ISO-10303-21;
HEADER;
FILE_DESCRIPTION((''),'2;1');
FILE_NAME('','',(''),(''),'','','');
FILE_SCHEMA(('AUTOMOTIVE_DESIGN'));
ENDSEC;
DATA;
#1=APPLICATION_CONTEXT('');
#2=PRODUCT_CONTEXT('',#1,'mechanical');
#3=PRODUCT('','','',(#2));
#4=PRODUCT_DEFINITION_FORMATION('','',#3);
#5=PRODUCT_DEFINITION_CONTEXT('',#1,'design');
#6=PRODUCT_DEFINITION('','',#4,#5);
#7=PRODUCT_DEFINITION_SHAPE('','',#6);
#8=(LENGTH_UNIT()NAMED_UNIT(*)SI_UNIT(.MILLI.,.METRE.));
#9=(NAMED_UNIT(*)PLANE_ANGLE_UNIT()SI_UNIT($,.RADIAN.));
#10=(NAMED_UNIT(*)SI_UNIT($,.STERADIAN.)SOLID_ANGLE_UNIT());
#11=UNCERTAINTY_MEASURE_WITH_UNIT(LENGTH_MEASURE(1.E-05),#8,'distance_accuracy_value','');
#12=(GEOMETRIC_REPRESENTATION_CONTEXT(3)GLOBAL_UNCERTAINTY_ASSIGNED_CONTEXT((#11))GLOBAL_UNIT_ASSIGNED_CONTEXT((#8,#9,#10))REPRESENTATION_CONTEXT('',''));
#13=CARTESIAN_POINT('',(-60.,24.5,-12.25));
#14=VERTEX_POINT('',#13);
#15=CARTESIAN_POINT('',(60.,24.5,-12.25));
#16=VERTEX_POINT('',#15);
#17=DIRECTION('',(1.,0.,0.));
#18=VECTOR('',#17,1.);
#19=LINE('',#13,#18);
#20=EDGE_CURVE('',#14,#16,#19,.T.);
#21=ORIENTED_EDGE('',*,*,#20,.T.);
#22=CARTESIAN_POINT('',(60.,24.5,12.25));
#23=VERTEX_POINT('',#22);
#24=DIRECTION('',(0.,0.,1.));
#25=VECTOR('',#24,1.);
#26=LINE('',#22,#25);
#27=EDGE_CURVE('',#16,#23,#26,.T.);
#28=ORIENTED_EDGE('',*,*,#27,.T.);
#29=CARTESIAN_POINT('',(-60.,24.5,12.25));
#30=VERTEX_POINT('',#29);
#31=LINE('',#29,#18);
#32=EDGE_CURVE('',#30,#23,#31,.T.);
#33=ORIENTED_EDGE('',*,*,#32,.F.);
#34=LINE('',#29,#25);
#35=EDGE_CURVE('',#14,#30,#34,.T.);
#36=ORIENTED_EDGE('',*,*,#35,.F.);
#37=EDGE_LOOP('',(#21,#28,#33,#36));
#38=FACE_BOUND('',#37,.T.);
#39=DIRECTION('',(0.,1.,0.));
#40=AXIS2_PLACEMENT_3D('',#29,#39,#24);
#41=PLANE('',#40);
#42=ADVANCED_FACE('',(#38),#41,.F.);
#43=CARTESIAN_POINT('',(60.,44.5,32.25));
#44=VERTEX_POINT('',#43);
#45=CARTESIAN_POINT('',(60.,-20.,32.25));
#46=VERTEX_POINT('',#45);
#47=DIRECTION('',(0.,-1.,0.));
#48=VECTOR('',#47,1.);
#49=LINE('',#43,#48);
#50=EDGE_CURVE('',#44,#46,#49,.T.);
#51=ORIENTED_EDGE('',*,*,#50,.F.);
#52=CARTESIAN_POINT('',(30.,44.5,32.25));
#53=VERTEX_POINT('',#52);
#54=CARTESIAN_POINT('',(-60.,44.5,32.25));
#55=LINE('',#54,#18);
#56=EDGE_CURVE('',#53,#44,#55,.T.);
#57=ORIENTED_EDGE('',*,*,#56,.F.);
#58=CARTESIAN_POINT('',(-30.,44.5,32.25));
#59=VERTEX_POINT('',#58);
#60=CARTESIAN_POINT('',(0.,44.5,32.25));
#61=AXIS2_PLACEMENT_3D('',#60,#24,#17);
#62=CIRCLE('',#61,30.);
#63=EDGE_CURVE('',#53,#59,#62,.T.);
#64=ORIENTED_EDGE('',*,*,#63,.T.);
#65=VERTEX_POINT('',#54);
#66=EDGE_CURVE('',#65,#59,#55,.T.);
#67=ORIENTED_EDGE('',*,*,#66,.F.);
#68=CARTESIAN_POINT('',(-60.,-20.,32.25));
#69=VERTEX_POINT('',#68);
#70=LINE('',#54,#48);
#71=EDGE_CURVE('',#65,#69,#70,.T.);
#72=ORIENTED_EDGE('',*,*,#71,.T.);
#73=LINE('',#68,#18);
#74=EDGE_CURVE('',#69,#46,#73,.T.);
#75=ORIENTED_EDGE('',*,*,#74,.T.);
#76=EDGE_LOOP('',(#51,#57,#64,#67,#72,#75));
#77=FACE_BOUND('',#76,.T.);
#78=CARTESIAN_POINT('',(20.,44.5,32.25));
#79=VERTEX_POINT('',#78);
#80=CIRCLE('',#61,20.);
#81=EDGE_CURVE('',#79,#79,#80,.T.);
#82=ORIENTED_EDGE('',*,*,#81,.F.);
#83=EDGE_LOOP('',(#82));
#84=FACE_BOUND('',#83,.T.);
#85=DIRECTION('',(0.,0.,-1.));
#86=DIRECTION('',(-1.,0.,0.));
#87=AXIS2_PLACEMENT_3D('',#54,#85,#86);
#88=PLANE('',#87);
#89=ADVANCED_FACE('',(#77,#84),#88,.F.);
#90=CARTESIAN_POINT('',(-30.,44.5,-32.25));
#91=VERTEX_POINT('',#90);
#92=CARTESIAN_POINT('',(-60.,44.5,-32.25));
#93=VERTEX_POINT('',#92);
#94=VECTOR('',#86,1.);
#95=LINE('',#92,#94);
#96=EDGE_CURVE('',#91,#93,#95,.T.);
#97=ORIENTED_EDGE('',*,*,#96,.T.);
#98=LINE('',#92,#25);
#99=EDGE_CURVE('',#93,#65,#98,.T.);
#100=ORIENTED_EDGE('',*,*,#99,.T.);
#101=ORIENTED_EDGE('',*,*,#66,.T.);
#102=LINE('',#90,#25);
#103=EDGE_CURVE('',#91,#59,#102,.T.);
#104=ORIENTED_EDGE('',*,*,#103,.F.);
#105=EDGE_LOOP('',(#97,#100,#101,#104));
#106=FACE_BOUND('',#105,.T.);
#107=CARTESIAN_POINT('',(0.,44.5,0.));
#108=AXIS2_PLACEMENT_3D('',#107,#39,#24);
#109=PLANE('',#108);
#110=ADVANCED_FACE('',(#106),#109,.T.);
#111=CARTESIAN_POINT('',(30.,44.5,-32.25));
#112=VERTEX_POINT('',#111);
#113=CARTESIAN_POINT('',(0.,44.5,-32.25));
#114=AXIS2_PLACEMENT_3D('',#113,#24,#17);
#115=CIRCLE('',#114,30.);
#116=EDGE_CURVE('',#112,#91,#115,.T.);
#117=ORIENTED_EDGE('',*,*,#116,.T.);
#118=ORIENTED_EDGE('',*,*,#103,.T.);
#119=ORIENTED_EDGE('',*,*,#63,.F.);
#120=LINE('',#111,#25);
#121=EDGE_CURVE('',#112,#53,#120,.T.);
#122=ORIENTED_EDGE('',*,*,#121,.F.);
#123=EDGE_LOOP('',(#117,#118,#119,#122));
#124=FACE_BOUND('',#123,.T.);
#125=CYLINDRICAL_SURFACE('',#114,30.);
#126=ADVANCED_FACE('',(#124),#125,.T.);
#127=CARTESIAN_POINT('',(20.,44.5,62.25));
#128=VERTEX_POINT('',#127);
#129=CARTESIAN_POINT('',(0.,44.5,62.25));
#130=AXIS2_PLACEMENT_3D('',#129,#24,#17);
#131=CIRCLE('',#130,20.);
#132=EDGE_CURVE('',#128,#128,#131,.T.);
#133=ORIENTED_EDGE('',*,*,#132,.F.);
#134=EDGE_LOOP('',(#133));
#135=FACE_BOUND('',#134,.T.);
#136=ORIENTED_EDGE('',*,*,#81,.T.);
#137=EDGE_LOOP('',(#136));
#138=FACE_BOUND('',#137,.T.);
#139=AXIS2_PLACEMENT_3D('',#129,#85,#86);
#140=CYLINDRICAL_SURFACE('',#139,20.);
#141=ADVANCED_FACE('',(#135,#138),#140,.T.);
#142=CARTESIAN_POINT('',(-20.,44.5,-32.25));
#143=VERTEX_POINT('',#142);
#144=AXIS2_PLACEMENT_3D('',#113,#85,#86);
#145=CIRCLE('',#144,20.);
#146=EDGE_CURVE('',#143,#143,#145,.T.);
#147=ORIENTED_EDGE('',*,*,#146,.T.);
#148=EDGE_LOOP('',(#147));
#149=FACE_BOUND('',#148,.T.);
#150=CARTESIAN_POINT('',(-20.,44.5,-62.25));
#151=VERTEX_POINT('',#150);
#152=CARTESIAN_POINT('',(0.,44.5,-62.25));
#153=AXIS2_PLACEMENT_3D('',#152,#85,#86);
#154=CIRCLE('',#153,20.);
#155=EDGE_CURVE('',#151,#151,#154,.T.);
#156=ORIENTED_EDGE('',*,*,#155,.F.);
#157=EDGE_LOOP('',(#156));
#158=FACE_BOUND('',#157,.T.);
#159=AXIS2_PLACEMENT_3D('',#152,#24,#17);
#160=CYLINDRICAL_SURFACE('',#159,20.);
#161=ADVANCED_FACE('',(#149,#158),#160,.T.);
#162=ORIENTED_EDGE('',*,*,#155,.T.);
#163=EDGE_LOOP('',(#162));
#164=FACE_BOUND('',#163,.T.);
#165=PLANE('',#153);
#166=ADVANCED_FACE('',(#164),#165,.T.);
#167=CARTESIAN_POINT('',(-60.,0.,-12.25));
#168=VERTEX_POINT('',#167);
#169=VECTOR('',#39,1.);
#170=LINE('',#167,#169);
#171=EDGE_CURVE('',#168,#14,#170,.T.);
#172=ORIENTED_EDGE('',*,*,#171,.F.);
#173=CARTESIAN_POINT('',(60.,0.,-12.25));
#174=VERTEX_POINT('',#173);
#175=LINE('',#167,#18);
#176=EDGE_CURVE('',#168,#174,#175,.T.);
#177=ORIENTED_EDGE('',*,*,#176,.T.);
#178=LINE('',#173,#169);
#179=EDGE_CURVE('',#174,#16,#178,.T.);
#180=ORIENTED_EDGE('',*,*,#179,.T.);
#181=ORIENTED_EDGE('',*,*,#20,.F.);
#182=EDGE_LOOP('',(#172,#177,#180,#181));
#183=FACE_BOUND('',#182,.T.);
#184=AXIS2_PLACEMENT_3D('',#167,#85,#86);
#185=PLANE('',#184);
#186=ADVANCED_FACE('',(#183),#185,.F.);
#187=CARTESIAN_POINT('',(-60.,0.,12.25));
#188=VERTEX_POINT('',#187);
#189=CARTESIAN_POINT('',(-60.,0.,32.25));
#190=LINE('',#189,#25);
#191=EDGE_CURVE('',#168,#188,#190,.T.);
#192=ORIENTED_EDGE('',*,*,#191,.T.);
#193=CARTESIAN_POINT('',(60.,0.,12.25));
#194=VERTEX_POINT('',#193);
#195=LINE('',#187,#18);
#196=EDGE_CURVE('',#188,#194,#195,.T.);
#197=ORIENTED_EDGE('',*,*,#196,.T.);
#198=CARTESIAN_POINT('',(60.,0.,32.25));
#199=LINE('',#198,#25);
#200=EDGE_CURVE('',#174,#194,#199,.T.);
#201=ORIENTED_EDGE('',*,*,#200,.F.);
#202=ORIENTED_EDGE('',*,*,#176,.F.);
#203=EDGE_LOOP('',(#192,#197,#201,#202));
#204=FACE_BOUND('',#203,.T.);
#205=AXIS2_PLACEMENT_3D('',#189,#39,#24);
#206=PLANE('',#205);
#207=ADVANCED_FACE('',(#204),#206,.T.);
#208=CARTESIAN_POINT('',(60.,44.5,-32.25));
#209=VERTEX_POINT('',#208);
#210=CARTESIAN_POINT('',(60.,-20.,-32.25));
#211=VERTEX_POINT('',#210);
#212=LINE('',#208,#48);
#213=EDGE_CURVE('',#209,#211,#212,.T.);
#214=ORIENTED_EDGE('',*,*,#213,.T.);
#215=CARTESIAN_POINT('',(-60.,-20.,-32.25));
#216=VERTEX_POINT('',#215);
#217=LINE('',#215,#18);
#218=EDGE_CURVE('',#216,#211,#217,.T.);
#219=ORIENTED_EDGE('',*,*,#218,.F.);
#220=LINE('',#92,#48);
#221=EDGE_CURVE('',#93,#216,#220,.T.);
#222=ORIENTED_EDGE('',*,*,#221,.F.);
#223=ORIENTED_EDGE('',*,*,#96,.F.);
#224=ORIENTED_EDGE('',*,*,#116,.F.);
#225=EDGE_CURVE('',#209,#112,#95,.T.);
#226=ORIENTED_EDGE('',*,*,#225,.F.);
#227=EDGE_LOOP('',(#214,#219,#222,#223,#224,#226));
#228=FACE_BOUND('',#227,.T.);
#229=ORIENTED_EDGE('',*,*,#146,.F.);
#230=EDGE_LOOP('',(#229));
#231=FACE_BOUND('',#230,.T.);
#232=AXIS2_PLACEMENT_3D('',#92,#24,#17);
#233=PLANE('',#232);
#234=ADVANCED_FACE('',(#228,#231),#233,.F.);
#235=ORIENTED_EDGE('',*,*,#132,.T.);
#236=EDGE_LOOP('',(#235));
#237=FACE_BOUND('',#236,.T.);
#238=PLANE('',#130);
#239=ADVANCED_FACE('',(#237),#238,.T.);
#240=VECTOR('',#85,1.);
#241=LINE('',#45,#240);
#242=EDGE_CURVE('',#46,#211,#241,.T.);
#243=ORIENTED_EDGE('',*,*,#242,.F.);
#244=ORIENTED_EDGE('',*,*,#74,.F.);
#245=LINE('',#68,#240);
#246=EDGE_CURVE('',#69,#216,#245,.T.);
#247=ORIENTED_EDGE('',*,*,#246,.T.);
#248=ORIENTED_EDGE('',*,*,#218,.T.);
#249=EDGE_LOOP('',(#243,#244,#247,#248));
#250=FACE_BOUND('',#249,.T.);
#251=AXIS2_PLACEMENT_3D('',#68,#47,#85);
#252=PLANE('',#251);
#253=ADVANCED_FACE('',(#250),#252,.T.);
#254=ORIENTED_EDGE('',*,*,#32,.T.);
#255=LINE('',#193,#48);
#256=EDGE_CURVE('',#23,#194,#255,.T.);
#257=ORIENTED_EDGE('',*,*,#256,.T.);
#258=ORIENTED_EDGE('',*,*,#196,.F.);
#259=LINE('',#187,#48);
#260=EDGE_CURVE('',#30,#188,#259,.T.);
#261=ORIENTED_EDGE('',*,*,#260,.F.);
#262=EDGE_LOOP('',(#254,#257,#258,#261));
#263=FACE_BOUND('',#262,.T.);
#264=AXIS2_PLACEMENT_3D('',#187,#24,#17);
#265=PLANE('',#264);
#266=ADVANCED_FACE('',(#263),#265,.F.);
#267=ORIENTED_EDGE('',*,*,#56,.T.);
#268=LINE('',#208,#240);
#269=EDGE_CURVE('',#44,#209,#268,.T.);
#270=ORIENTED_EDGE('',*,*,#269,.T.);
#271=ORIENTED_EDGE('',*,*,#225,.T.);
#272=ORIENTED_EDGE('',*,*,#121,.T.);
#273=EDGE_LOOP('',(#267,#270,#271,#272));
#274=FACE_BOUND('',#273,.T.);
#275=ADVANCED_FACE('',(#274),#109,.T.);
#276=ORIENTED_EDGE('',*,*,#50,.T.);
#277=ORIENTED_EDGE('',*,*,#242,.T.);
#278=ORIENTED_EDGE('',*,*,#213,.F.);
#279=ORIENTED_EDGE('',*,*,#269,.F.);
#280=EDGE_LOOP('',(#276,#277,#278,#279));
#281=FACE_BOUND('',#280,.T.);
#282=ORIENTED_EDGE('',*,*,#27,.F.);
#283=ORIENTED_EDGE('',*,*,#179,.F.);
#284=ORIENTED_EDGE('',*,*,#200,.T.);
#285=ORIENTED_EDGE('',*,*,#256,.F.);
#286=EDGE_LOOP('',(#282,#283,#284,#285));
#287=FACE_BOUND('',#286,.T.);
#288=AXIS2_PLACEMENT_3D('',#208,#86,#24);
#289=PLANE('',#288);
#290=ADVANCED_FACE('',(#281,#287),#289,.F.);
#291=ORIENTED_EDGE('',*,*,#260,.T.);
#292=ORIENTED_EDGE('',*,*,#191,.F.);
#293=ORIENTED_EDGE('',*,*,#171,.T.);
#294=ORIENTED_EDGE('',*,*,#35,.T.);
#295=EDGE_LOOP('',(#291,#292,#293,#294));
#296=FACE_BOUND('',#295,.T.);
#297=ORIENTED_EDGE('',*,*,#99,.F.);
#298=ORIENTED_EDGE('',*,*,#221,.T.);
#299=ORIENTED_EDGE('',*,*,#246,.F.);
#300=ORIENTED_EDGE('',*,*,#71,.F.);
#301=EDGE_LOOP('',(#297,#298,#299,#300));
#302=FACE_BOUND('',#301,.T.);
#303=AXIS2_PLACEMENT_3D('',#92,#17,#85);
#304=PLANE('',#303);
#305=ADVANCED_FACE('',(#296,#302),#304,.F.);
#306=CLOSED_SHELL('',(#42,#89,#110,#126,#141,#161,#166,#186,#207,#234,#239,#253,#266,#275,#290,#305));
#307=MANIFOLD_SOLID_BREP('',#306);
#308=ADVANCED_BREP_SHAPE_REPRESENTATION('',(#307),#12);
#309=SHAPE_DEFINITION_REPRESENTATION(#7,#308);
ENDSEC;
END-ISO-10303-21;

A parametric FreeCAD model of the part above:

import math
import FreeCAD as App
import Part
import Sketcher

V = App.Vector
Q = App.Units.Quantity

doc = App.newDocument("Part")
body = doc.addObject("PartDesign::Body", "Body")

# Sketch on XZ plane
sketch1 = body.newObject("Sketcher::SketchObject", "Sketch")
sketch1.AttachmentSupport = (doc.getObject("XZ_Plane"), [""])
sketch1.MapMode = "FlatFace"
sketch1.addGeometry([
    Part.LineSegment(V(-60, -32.25, 0), V(-60, 32.25, 0)),
    Part.LineSegment(V(-60, 32.25, 0), V(60, 32.25, 0)),
    Part.LineSegment(V(60, 32.25, 0), V(60, -32.25, 0)),
    Part.LineSegment(V(60, -32.25, 0), V(-60, -32.25, 0)),
], False)
sketch1.addConstraint([
    Sketcher.Constraint("Coincident", 0, 2, 1, 1),
    Sketcher.Constraint("Coincident", 1, 2, 2, 1),
    Sketcher.Constraint("Coincident", 2, 2, 3, 1),
    Sketcher.Constraint("Coincident", 3, 2, 0, 1),
    Sketcher.Constraint("Vertical", 0),
    Sketcher.Constraint("Horizontal", 1),
    Sketcher.Constraint("Vertical", 2),
    Sketcher.Constraint("Horizontal", 3),
    Sketcher.Constraint("Symmetric", 0, 2, 2, 2, -1, 1),
    Sketcher.Constraint("DistanceX", 1, 1, 1, 2, Q("120 mm")),
    Sketcher.Constraint("DistanceY", 0, 1, 0, 2, Q("64.5 mm")),
])
pad1 = body.newObject("PartDesign::Pad", "Pad")
pad1.Profile = sketch1
pad1.Length = 44.5
pad1.Reversed = True

# Sketch on YZ plane
sketch2 = body.newObject("Sketcher::SketchObject", "Sketch001")
sketch2.AttachmentSupport = (doc.getObject("YZ_Plane"), [""])
sketch2.MapMode = "FlatFace"
sketch2.AttachmentOffset = App.Placement(V(0, 0, 60), App.Rotation())
sketch2.addGeometry([
    Part.LineSegment(V(24.5, 12.25, 0), V(0, 12.25, 0)),
    Part.LineSegment(V(0, 12.25, 0), V(0, -12.25, 0)),
    Part.LineSegment(V(0, -12.25, 0), V(24.5, -12.25, 0)),
    Part.LineSegment(V(24.5, -12.25, 0), V(24.5, 12.25, 0)),
], False)
sketch2.addConstraint([
    Sketcher.Constraint("Coincident", 0, 2, 1, 1),
    Sketcher.Constraint("Coincident", 1, 2, 2, 1),
    Sketcher.Constraint("Coincident", 2, 2, 3, 1),
    Sketcher.Constraint("Coincident", 3, 2, 0, 1),
    Sketcher.Constraint("Horizontal", 0),
    Sketcher.Constraint("Vertical", 1),
    Sketcher.Constraint("Horizontal", 2),
    Sketcher.Constraint("Vertical", 3),
    Sketcher.Constraint("Symmetric", 0, 2, 1, 2, -1, 1),
    Sketcher.Constraint("Equal", 2, 1),
    Sketcher.Constraint("DistanceX", 0, 2, 0, 1, Q("24.5 mm")),
])
pocket1 = body.newObject("PartDesign::Pocket", "Pocket")
pocket1.Profile = sketch2
pocket1.Type = "ThroughAll"

# Sketch on XY plane
sketch3 = body.newObject("Sketcher::SketchObject", "Sketch002")
sketch3.AttachmentSupport = (doc.getObject("XY_Plane"), [""])
sketch3.MapMode = "FlatFace"
sketch3.AttachmentOffset = App.Placement(V(0, 0, 32.25), App.Rotation())
sketch3.addGeometry([
    Part.LineSegment(V(-30, 44.5, 0), V(30, 44.5, 0)),
    Part.ArcOfCircle(Part.Circle(V(0, 44.5, 0), V(0, 0, 1), 30), math.radians(0), math.radians(180)),
], False)
sketch3.addConstraint([
    Sketcher.Constraint("Coincident", 0, 1, 1, 2),
    Sketcher.Constraint("Coincident", 1, 1, 0, 2),
    Sketcher.Constraint("Horizontal", 0),
    Sketcher.Constraint("PointOnObject", 1, 3, -2),
    Sketcher.Constraint("Horizontal", 1, 3, 0, 1),
    Sketcher.Constraint("Radius", 1, Q("30 mm")),
    Sketcher.Constraint("DistanceY", -1, 1, 1, 3, Q("44.5 mm")),
])
pad2 = body.newObject("PartDesign::Pad", "Pad001")
pad2.Profile = sketch3
pad2.Length = 64.5
pad2.Reversed = True

# Sketch on XY plane
sketch4 = body.newObject("Sketcher::SketchObject", "Sketch003")
sketch4.AttachmentSupport = (doc.getObject("XY_Plane"), [""])
sketch4.MapMode = "FlatFace"
sketch4.AttachmentOffset = App.Placement(V(0, 0, 32.25), App.Rotation())
sketch4.addGeometry(Part.Circle(V(0, 44.5, 0), V(0, 0, 1), 20), False)
sketch4.addConstraint([
    Sketcher.Constraint("PointOnObject", 0, 3, -2),
    Sketcher.Constraint("Diameter", 0, Q("40 mm")),
    Sketcher.Constraint("DistanceY", -1, 1, 0, 3, Q("44.5 mm")),
])
pad3 = body.newObject("PartDesign::Pad", "Pad002")
pad3.Profile = sketch4
pad3.Length = 30

# Sketch on XY plane
sketch5 = body.newObject("Sketcher::SketchObject", "Sketch004")
sketch5.AttachmentSupport = (doc.getObject("XY_Plane"), [""])
sketch5.MapMode = "FlatFace"
sketch5.AttachmentOffset = App.Placement(V(0, 0, -32.25), App.Rotation())
sketch5.addGeometry(Part.Circle(V(0, 44.5, 0), V(0, 0, 1), 20), False)
sketch5.addConstraint([
    Sketcher.Constraint("PointOnObject", 0, 3, -2),
    Sketcher.Constraint("Diameter", 0, Q("40 mm")),
    Sketcher.Constraint("DistanceY", -1, 1, 0, 3, Q("44.5 mm")),
])
pad4 = body.newObject("PartDesign::Pad", "Pad003")
pad4.Profile = sketch5
pad4.Length = 30
pad4.Reversed = True

# Sketch on YZ plane
sketch6 = body.newObject("Sketcher::SketchObject", "Sketch005")
sketch6.AttachmentSupport = (doc.getObject("YZ_Plane"), [""])
sketch6.MapMode = "FlatFace"
sketch6.AttachmentOffset = App.Placement(V(0, 0, 60), App.Rotation())
sketch6.addGeometry([
    Part.LineSegment(V(0, 32.25, 0), V(-20, 32.25, 0)),
    Part.LineSegment(V(-20, 32.25, 0), V(-20, -32.25, 0)),
    Part.LineSegment(V(-20, -32.25, 0), V(0, -32.25, 0)),
    Part.LineSegment(V(0, -32.25, 0), V(0, 32.25, 0)),
], False)
sketch6.addConstraint([
    Sketcher.Constraint("Coincident", 0, 2, 1, 1),
    Sketcher.Constraint("Coincident", 1, 2, 2, 1),
    Sketcher.Constraint("Coincident", 2, 2, 3, 1),
    Sketcher.Constraint("Coincident", 3, 2, 0, 1),
    Sketcher.Constraint("Horizontal", 0),
    Sketcher.Constraint("Vertical", 1),
    Sketcher.Constraint("Horizontal", 2),
    Sketcher.Constraint("Vertical", 3),
    Sketcher.Constraint("Symmetric", 2, 2, 3, 2, -1, 1),
    Sketcher.Constraint("DistanceX", 0, 2, 0, 1, Q("20 mm")),
    Sketcher.Constraint("DistanceY", 1, 2, 1, 1, Q("64.5 mm")),
])
pad5 = body.newObject("PartDesign::Pad", "Pad004")
pad5.Profile = sketch6
pad5.Length = 120
pad5.Reversed = True

doc.recompute()
